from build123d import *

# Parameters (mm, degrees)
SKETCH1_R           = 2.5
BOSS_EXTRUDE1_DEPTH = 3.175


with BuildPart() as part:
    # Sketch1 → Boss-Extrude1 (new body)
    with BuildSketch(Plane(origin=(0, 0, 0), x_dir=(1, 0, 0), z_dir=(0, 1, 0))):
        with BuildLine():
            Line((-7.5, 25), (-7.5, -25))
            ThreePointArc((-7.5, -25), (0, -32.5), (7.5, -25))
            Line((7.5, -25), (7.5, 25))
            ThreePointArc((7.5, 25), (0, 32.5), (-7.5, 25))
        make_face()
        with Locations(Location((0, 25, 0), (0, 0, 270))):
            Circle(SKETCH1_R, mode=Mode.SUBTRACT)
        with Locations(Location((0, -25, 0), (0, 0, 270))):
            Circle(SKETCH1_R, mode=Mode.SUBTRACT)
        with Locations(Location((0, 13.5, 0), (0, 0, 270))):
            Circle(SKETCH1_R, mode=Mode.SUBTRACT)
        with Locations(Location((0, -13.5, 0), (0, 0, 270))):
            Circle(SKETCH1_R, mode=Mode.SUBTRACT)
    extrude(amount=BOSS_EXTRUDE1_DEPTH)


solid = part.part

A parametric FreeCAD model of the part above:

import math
import FreeCAD as App
import Part
import Sketcher

V = App.Vector
Q = App.Units.Quantity

doc = App.newDocument("Part")
body = doc.addObject("PartDesign::Body", "Body")

# Sketch on XZ plane
sketch1 = body.newObject("Sketcher::SketchObject", "Sketch")
sketch1.AttachmentSupport = (doc.getObject("XZ_Plane"), [""])
sketch1.MapMode = "FlatFace"
sketch1.addGeometry(Part.LineSegment(V(-7.5, -25, 0), V(-7.5, 25, 0)), False)
sketch1.addGeometry(Part.ArcOfCircle(Part.Circle(V(0, 25, 0), V(0, 0, 1), 7.5), math.radians(0), math.radians(180)), False)
sketch1.addGeometry(Part.LineSegment(V(7.5, 25, 0), V(7.5, -25, 0)), False)
sketch1.addGeometry(Part.ArcOfCircle(Part.Circle(V(0, -25, 0), V(0, 0, 1), 7.5), math.radians(180), math.radians(360)), False)
sketch1.addGeometry(Part.Circle(V(0, 25, 0), V(0, 0, 1), 2.5), False)
sketch1.addGeometry(Part.Circle(V(0, 13.5, 0), V(0, 0, 1), 2.5), False)
sketch1.addGeometry(Part.Circle(V(0, -13.5, 0), V(0, 0, 1), 2.5), False)
sketch1.addGeometry(Part.Circle(V(0, -25, 0), V(0, 0, 1), 2.5), False)
sketch1.addConstraint(Sketcher.Constraint("Tangent", 0, 2, 1, 2))
sketch1.addConstraint(Sketcher.Constraint("Tangent", 1, 1, 2, 1))
sketch1.addConstraint(Sketcher.Constraint("Tangent", 2, 2, 3, 2))
sketch1.addConstraint(Sketcher.Constraint("Tangent", 3, 1, 0, 1))
sketch1.addConstraint(Sketcher.Constraint("Vertical", 0))
sketch1.addConstraint(Sketcher.Constraint("Vertical", 2))
sketch1.addConstraint(Sketcher.Constraint("Coincident", 4, 3, 1, 3))
sketch1.addConstraint(Sketcher.Constraint("Coincident", 7, 3, 3, 3))
sketch1.addConstraint(Sketcher.Constraint("Equal", 4, 5))
sketch1.addConstraint(Sketcher.Constraint("Equal", 5, 6))
sketch1.addConstraint(Sketcher.Constraint("Equal", 6, 7))
sketch1.addConstraint(Sketcher.Constraint("Symmetric", 1, 3, 3, 3, -1, 1))
sketch1.addConstraint(Sketcher.Constraint("Symmetric", 5, 3, 6, 3, -1, 1))
sketch1.addConstraint(Sketcher.Constraint("PointOnObject", 5, 3, -2))
sketch1.addConstraint(Sketcher.Constraint("Diameter", 4, Q("5 mm")))
sketch1.addConstraint(Sketcher.Constraint("Radius", 1, Q("7.5 mm")))
sketch1.addConstraint(Sketcher.Constraint("DistanceY", 0, 1, 0, 2, Q("50 mm")))
sketch1.addConstraint(Sketcher.Constraint("DistanceY", 6, 3, 5, 3, Q("27 mm")))
pad1 = body.newObject("PartDesign::Pad", "Pad")
pad1.Profile = sketch1
pad1.Length = 3.175
pad1.Reversed = True

doc.recompute()
